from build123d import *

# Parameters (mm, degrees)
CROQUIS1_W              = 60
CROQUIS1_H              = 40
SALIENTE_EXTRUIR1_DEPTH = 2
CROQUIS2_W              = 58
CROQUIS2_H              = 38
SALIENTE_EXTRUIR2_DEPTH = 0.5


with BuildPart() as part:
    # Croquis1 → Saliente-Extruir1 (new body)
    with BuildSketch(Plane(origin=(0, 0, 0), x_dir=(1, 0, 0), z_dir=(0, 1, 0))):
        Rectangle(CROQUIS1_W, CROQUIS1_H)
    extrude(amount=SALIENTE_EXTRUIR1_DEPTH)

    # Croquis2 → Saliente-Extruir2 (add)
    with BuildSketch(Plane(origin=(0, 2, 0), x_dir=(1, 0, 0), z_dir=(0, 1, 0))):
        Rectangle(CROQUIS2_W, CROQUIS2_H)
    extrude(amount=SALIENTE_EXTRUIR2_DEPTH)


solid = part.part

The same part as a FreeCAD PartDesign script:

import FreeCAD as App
import Part
import Sketcher
from FreeCAD import Vector

doc = App.newDocument("Part")
body = doc.addObject("PartDesign::Body", "Body")

sketch1 = body.newObject("Sketcher::SketchObject", "Sketch")
sketch1.AttachmentSupport = (doc.getObject("XZ_Plane"), [""])
sketch1.MapMode = "FlatFace"
sketch1.addGeometry([
    Part.LineSegment(Vector(-30, -20, 0), Vector(-30, 20, 0)),
    Part.LineSegment(Vector(-30, 20, 0), Vector(30, 20, 0)),
    Part.LineSegment(Vector(30, 20, 0), Vector(30, -20, 0)),
    Part.LineSegment(Vector(30, -20, 0), Vector(-30, -20, 0)),
], False)
sketch1.addConstraint([
    Sketcher.Constraint("Coincident", 0, 2, 1, 1),
    Sketcher.Constraint("Coincident", 1, 2, 2, 1),
    Sketcher.Constraint("Coincident", 2, 2, 3, 1),
    Sketcher.Constraint("Coincident", 3, 2, 0, 1),
    Sketcher.Constraint("Vertical", 0),
    Sketcher.Constraint("Horizontal", 1),
    Sketcher.Constraint("Vertical", 2),
    Sketcher.Constraint("Horizontal", 3),
    Sketcher.Constraint("Symmetric", 0, 2, 2, 2, -1, 1),
    Sketcher.Constraint("DistanceX", 1, 1, 1, 2, 60.0),
    Sketcher.Constraint("DistanceY", 0, 1, 0, 2, 40.0),
])
pad1 = body.newObject("PartDesign::Pad", "Pad")
pad1.Profile = sketch1
pad1.Length = 2
pad1.Reversed = True

sketch2 = body.newObject("Sketcher::SketchObject", "Sketch001")
sketch2.AttachmentSupport = (doc.getObject("XZ_Plane"), [""])
sketch2.MapMode = "FlatFace"
sketch2.AttachmentOffset = App.Placement(Vector(0, 0, -2), App.Rotation())
sketch2.addGeometry([
    Part.LineSegment(Vector(-29, -19, 0), Vector(-29, 19, 0)),
    Part.LineSegment(Vector(-29, 19, 0), Vector(29, 19, 0)),
    Part.LineSegment(Vector(29, 19, 0), Vector(29, -19, 0)),
    Part.LineSegment(Vector(29, -19, 0), Vector(-29, -19, 0)),
], False)
sketch2.addConstraint([
    Sketcher.Constraint("Coincident", 0, 2, 1, 1),
    Sketcher.Constraint("Coincident", 1, 2, 2, 1),
    Sketcher.Constraint("Coincident", 2, 2, 3, 1),
    Sketcher.Constraint("Coincident", 3, 2, 0, 1),
    Sketcher.Constraint("Vertical", 0),
    Sketcher.Constraint("Horizontal", 1),
    Sketcher.Constraint("Vertical", 2),
    Sketcher.Constraint("Horizontal", 3),
    Sketcher.Constraint("Symmetric", 0, 2, 2, 2, -1, 1),
    Sketcher.Constraint("DistanceX", 1, 1, 1, 2, 58.0),
    Sketcher.Constraint("DistanceY", 0, 1, 0, 2, 38.0),
])
pad2 = body.newObject("PartDesign::Pad", "Pad001")
pad2.Profile = sketch2
pad2.Length = 0.5
pad2.Reversed = True

doc.recompute()
